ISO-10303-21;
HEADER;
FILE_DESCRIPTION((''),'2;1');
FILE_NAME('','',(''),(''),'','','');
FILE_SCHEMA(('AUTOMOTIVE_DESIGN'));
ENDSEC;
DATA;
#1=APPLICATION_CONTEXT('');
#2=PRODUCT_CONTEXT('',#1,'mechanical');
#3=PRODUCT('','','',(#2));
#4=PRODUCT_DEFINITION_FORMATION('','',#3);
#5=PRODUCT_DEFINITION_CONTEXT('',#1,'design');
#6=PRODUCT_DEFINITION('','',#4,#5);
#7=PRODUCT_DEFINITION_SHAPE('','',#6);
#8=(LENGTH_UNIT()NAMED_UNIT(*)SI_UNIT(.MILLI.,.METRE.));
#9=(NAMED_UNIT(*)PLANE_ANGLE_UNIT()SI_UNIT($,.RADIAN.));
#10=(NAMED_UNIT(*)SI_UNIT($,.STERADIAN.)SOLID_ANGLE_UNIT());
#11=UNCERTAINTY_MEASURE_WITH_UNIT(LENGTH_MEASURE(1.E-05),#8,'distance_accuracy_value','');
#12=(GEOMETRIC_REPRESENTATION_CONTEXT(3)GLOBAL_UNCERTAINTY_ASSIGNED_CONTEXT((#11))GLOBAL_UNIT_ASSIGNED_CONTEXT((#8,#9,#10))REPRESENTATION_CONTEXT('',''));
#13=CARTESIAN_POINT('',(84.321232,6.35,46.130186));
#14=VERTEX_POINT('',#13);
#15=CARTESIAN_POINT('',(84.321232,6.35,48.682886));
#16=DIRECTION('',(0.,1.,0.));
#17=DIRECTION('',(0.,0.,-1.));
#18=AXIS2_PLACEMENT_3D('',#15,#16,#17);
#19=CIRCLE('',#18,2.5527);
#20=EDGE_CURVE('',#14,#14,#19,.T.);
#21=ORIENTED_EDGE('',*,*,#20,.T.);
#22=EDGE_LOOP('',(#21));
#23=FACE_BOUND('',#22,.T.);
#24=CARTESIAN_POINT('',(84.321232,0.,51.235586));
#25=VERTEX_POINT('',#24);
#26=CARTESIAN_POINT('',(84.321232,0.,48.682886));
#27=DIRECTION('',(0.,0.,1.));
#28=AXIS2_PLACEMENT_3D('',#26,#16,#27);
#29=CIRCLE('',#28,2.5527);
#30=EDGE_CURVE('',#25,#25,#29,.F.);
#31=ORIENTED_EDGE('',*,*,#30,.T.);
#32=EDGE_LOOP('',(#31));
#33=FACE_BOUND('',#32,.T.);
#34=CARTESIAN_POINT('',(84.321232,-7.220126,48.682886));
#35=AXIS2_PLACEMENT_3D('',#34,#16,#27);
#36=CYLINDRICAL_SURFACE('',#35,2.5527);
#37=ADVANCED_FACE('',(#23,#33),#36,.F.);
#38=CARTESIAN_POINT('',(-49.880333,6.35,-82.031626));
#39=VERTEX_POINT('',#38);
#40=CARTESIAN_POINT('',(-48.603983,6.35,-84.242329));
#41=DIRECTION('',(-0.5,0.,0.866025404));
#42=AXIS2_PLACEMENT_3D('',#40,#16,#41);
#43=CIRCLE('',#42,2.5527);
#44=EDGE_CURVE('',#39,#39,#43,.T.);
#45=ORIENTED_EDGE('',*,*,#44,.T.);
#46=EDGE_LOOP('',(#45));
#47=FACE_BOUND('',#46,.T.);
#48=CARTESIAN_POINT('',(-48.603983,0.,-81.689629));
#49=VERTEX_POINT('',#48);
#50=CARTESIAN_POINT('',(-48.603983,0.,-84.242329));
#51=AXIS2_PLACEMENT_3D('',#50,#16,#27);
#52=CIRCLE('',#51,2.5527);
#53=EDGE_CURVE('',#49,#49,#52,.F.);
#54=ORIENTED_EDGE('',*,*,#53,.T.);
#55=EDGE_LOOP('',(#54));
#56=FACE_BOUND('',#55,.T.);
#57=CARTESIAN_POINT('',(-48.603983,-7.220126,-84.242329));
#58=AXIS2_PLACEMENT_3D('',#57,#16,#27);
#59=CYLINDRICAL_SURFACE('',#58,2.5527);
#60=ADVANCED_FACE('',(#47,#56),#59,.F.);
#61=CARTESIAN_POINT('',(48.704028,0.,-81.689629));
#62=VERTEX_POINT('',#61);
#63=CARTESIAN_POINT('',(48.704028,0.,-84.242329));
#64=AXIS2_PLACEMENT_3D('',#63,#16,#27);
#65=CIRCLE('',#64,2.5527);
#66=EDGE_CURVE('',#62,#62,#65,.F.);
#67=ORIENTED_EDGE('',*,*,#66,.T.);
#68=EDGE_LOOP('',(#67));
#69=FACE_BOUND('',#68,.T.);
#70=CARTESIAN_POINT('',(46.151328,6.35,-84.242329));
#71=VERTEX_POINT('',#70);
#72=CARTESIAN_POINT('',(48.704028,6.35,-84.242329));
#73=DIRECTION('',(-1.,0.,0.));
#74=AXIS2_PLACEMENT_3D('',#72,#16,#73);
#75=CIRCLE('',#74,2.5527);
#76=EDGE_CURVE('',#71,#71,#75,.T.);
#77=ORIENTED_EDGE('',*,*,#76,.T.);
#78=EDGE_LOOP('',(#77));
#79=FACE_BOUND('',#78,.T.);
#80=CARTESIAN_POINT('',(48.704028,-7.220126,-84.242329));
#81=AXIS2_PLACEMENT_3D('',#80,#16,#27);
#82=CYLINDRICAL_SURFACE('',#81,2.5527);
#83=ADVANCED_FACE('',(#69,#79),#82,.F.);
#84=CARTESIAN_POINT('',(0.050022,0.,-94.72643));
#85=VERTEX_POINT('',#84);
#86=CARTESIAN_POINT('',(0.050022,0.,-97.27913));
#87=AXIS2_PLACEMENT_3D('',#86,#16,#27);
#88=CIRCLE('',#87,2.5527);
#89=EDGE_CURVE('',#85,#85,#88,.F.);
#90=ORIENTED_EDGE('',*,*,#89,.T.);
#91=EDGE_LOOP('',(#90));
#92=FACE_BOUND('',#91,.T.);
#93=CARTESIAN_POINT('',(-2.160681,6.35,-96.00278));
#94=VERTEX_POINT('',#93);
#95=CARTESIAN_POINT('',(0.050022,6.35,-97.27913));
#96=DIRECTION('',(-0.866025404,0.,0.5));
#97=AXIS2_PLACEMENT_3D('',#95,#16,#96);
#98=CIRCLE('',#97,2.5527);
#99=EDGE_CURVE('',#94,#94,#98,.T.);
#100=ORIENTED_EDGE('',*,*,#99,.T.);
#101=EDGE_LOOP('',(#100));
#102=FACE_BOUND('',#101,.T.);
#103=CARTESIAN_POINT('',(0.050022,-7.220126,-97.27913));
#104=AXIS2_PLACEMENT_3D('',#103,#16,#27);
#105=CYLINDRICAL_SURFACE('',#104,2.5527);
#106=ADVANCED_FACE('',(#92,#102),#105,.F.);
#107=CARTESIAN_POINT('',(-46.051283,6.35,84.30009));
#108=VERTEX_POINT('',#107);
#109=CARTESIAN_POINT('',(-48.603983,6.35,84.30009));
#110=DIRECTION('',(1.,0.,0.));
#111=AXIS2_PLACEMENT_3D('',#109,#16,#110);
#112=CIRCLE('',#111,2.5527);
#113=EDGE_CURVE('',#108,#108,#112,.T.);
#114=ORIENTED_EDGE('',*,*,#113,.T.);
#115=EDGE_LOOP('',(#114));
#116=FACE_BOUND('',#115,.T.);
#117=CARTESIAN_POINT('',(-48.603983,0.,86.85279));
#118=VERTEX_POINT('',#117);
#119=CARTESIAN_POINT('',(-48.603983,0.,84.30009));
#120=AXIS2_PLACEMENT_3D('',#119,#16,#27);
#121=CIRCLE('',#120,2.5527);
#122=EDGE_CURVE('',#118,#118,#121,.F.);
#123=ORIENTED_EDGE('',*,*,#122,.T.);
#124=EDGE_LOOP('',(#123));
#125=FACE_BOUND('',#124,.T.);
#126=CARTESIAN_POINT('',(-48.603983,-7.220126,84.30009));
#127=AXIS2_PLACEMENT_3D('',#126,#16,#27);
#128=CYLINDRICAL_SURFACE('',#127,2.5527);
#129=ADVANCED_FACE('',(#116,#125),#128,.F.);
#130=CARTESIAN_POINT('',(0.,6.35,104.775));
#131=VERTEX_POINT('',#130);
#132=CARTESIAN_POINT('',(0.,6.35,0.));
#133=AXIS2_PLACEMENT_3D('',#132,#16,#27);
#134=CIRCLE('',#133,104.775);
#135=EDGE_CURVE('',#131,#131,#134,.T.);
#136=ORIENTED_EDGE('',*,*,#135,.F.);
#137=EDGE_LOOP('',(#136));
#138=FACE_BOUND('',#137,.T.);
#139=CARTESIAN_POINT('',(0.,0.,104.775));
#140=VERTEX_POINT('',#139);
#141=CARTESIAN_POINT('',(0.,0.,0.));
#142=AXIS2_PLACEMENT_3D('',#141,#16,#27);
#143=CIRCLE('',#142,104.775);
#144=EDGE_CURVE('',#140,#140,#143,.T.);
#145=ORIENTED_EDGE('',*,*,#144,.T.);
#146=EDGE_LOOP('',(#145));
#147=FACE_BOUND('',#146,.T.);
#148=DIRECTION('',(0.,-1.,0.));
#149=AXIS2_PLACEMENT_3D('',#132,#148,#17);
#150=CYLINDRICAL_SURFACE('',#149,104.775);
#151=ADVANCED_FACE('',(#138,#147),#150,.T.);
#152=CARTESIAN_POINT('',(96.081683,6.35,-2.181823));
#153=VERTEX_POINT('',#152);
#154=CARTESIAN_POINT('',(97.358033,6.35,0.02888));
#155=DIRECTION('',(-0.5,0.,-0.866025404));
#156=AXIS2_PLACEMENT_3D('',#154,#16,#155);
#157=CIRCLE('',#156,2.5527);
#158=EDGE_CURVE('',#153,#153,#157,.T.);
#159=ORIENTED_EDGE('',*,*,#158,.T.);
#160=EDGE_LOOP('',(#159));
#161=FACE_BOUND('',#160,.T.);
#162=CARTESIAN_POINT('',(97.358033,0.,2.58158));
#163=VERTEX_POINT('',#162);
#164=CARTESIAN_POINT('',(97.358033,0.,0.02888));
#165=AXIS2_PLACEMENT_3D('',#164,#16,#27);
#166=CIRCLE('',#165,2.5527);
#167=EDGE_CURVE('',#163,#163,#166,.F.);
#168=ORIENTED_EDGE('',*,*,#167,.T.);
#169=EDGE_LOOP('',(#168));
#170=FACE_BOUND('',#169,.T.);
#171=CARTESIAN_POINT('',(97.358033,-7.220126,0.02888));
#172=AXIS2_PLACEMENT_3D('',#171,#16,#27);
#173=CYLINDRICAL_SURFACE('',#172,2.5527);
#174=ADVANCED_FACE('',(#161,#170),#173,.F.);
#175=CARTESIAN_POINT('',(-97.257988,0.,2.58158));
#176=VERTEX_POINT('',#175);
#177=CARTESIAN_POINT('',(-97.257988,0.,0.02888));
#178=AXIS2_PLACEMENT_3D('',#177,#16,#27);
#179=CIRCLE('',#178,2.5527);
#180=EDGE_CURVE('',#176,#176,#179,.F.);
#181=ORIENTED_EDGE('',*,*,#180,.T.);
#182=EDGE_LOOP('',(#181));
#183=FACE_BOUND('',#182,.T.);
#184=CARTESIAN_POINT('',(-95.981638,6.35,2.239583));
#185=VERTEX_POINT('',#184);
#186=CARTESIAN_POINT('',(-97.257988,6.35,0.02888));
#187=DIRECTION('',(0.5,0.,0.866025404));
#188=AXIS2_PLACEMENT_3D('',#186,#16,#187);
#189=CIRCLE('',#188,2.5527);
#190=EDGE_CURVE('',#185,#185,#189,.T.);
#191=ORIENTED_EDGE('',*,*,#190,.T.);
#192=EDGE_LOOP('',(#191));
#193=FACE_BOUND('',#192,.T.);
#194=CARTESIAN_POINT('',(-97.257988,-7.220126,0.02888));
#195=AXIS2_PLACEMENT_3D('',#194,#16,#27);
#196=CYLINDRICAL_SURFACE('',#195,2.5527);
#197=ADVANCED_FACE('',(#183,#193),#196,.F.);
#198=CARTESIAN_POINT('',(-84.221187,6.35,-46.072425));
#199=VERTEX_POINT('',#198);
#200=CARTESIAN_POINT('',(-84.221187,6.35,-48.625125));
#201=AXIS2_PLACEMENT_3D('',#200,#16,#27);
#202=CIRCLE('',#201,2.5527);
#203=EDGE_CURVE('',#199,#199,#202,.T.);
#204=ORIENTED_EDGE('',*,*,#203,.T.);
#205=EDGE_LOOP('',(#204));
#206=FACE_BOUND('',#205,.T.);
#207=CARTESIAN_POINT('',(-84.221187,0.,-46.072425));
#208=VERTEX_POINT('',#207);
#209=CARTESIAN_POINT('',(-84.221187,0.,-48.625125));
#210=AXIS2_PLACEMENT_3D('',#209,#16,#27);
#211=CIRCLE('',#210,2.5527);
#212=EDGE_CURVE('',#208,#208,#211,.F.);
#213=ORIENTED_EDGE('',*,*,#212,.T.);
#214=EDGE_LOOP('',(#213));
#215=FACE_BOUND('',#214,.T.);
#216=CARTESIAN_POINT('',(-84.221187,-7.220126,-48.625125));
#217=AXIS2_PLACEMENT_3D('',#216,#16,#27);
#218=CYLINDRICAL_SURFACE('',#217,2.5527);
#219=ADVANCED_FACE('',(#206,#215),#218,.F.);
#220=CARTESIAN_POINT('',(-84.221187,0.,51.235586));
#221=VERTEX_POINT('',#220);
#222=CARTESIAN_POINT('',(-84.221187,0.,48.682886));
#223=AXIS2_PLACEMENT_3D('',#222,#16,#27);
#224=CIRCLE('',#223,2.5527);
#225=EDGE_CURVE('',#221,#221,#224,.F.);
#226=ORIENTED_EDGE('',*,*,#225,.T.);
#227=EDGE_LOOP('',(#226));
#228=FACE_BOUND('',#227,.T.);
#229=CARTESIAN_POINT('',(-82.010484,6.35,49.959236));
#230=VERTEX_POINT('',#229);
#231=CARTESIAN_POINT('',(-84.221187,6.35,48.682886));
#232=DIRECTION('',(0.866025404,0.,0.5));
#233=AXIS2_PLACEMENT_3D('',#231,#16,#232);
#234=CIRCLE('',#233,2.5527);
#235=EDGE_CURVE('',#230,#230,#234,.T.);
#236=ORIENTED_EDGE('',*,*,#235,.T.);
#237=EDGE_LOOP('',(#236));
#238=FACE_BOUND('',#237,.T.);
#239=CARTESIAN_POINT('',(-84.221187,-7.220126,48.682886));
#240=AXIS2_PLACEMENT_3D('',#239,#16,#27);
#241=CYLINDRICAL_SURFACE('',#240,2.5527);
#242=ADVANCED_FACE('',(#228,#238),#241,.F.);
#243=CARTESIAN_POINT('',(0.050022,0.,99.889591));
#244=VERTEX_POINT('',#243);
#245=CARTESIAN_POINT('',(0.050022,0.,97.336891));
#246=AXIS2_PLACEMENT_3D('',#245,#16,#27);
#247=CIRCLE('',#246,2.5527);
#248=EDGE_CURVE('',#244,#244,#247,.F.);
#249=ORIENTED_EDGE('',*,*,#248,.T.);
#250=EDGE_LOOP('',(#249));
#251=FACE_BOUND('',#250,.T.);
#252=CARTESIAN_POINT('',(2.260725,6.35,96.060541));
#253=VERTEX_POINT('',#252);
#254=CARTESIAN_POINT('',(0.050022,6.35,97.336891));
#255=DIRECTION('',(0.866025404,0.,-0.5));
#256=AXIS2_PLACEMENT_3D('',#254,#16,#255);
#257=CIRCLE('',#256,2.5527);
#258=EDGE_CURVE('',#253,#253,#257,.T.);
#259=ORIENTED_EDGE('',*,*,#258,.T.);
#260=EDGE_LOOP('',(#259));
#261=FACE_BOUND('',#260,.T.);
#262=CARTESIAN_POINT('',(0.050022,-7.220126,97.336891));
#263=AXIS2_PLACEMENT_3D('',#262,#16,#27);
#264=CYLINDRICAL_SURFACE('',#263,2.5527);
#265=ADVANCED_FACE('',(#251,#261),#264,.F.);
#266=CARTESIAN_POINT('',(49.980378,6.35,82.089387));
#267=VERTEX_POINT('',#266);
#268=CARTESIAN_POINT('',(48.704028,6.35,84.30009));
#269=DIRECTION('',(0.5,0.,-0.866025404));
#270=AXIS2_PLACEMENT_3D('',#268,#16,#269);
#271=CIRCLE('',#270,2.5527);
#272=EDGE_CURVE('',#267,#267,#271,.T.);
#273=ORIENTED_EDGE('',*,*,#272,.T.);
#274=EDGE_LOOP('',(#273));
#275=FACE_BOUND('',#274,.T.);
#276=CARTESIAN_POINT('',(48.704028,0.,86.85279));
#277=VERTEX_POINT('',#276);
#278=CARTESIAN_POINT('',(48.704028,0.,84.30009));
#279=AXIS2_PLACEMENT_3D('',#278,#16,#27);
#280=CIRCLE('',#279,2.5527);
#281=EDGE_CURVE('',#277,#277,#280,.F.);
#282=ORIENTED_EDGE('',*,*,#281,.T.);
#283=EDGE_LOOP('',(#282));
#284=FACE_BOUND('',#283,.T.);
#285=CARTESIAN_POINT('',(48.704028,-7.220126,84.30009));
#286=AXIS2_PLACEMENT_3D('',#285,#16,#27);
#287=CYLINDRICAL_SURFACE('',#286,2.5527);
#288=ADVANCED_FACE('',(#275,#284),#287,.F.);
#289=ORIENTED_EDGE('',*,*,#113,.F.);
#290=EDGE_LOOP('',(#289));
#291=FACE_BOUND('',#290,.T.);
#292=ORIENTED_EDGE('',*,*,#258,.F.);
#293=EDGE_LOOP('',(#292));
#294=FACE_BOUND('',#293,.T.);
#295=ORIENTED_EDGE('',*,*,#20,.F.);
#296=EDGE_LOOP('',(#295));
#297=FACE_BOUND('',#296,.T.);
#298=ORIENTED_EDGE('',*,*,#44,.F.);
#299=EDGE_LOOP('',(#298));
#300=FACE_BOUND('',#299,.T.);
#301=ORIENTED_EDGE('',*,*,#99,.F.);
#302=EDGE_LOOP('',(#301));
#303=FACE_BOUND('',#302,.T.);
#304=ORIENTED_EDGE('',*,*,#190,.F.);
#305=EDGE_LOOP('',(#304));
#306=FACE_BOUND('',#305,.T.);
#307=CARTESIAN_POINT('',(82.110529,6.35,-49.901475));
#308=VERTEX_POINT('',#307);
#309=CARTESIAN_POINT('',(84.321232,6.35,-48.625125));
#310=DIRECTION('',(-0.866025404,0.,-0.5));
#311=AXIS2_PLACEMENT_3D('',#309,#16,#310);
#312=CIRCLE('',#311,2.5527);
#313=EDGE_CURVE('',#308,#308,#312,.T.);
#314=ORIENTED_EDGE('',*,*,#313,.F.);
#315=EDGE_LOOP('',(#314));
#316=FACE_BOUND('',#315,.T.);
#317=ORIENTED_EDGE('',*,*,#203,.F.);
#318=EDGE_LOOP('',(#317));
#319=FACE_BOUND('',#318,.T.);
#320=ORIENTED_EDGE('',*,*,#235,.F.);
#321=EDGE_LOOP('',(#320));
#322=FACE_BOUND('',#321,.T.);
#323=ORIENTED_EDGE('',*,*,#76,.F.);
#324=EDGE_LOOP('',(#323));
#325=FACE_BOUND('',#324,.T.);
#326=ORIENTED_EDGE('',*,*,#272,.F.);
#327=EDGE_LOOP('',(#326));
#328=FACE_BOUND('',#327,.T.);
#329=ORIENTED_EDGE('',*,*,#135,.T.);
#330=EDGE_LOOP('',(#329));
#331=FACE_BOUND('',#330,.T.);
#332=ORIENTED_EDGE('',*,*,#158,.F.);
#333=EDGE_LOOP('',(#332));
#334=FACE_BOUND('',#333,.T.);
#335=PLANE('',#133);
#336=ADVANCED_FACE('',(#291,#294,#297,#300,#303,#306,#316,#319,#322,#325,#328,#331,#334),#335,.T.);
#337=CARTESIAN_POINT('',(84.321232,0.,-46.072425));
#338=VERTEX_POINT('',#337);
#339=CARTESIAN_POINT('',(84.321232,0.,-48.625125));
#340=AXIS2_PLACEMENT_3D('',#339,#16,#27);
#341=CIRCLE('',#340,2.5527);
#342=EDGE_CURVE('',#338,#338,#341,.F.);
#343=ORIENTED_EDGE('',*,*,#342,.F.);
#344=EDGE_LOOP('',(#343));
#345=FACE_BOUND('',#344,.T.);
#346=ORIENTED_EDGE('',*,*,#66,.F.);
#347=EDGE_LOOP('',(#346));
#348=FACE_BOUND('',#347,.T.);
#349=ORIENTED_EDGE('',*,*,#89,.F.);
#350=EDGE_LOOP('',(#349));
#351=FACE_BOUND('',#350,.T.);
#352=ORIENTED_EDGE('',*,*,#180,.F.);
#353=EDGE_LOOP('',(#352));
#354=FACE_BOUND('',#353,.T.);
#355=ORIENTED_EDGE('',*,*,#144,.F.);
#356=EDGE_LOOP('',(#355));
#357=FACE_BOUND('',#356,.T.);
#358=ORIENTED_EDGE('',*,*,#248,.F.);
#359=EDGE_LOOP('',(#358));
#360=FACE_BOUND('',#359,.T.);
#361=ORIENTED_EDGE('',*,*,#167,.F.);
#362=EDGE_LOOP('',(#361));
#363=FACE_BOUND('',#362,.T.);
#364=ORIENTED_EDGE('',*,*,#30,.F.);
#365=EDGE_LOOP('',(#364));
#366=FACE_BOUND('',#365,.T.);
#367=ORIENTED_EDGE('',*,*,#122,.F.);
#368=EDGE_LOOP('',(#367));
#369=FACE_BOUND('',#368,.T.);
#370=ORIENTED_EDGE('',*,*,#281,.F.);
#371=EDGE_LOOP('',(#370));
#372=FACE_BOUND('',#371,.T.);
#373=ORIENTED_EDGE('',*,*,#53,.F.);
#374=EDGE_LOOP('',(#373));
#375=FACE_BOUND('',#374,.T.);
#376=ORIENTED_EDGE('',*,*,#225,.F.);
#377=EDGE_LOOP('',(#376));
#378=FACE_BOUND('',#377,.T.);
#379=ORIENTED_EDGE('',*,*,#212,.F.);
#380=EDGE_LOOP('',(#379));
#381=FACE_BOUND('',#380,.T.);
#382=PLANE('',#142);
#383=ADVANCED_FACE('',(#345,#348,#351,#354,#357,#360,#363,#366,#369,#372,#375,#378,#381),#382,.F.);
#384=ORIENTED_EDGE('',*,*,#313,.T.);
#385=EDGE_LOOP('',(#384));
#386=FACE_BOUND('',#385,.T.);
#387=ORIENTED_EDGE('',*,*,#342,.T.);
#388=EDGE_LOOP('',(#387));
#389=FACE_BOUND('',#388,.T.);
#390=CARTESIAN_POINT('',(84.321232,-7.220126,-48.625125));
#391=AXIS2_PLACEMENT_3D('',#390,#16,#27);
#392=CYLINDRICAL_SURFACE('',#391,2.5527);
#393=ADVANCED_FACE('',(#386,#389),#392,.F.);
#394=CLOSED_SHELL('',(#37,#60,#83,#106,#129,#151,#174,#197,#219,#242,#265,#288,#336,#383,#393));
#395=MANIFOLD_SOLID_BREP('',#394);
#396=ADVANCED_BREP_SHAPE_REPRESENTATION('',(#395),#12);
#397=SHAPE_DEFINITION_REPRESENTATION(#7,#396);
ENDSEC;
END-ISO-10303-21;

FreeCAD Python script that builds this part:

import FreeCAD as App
import Part
import Sketcher
Q = App.Units.Quantity

doc = App.newDocument("Part")
body = doc.addObject("PartDesign::Body", "Body")

# Sketch on XZ plane
sketch1 = doc.addObject("Sketcher::SketchObject", "Sketch")
body.addObject(sketch1)
sketch1.AttachmentSupport = (doc.XZ_Plane, [""])
sketch1.MapMode = "FlatFace"
sketch1.addGeometry(Part.Circle(App.Vector(0, 0, 0), App.Vector(0, 0, 1), 105), False)
sketch1.addConstraint(Sketcher.Constraint("Coincident", 0, 3, -1, 1))
sketch1.addConstraint(Sketcher.Constraint("Diameter", 0, Q("8.25 in")))
pad1 = doc.addObject("PartDesign::Pad", "Pad")
body.addObject(pad1)
pad1.Profile = sketch1
pad1.Length = Q("0.25 in")
pad1.Reversed = True

# Sketch on XZ plane
sketch2 = doc.addObject("Sketcher::SketchObject", "Sketch001")
body.addObject(sketch2)
sketch2.AttachmentSupport = (doc.XZ_Plane, [""])
sketch2.MapMode = "FlatFace"
sketch2.AttachmentOffset = App.Placement(App.Vector(0, 0, -0.25 * 25.4), App.Rotation())
sketch2.addGeometry(Part.Circle(App.Vector(-84.2, -48.6, 0), App.Vector(0, 0, 1), 2.6), False)
sketch2.addConstraint(Sketcher.Constraint("Diameter", 0, Q("0.201 in")))
sketch2.addConstraint(Sketcher.Constraint("DistanceX", 0, 3, -1, 1, Q("84.221187 mm")))
sketch2.addConstraint(Sketcher.Constraint("DistanceY", 0, 3, -1, 1, Q("48.625125 mm")))
pocket1 = doc.addObject("PartDesign::Pocket", "Pocket")
body.addObject(pocket1)
pocket1.Profile = sketch2
pocket1.Length = Q("0.25 in")
pocket1.Reversed = True
doc.recompute()

datumline = doc.addObject("PartDesign::Line", "DatumLine")
body.addObject(datumline)
datumline.Placement = App.Placement(App.Vector(0.050022, 0, 0.02888), App.Rotation(App.Vector(0, 0, 1), App.Vector(0, 1, 0)))
polarpattern = doc.addObject("PartDesign::PolarPattern", "PolarPattern")
body.addObject(polarpattern)
polarpattern.Originals = [pocket1]
polarpattern.Axis = (datumline, [""])
polarpattern.Angle = 360
polarpattern.Occurrences = 12
body.Tip = polarpattern

doc.recompute()
